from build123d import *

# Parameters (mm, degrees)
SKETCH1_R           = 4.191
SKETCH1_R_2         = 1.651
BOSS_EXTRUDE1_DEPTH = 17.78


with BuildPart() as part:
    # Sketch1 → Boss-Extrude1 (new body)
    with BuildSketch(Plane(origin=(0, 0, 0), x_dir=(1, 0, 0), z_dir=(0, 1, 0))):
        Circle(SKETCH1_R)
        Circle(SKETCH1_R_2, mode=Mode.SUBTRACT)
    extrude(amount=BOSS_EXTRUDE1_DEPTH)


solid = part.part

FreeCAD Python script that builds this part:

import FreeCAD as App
import Part
import Sketcher
Q = App.Units.Quantity

doc = App.newDocument("Part")
body = doc.addObject("PartDesign::Body", "Body")

# Sketch on XZ plane
sketch1 = body.newObject("Sketcher::SketchObject", "Sketch")
sketch1.AttachmentSupport = (doc.getObject("XZ_Plane"), [""])
sketch1.MapMode = "FlatFace"
sketch1.addGeometry(Part.Circle(App.Vector(0, 0, 0), App.Vector(0, 0, 1), 4.2), False)
sketch1.addGeometry(Part.Circle(App.Vector(0, 0, 0), App.Vector(0, 0, 1), 1.7), False)
sketch1.addConstraint(Sketcher.Constraint("Coincident", 0, 3, -1, 1))
sketch1.addConstraint(Sketcher.Constraint("Coincident", 1, 3, -1, 1))
sketch1.addConstraint(Sketcher.Constraint("Diameter", 0, Q("0.33 in")))
sketch1.addConstraint(Sketcher.Constraint("Diameter", 1, Q("0.13 in")))
pad1 = body.newObject("PartDesign::Pad", "Pad")
pad1.Profile = sketch1
pad1.Length = Q("0.7 in")
pad1.Reversed = True

doc.recompute()
